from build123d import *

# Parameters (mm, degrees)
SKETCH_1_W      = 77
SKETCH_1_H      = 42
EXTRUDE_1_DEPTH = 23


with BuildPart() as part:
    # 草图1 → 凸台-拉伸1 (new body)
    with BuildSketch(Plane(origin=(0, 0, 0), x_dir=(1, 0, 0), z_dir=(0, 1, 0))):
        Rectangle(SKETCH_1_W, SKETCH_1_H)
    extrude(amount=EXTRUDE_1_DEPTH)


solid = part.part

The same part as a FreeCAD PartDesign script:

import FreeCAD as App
import Part
import Sketcher
Q = App.Units.Quantity


def add_polygon(sketch, points):
    """Adds a closed chain of lines whose ends are joined by coincident constraints."""
    first, n = sketch.GeometryCount, len(points)
    for a, b in zip(points, points[1:] + points[:1]):
        sketch.addGeometry(Part.LineSegment(App.Vector(*a, 0), App.Vector(*b, 0)), False)
    for i in range(n):
        sketch.addConstraint(Sketcher.Constraint("Coincident", first + i, 2, first + (i + 1) % n, 1))

doc = App.newDocument("Part")
body = doc.addObject("PartDesign::Body", "Body")

# Sketch on XZ plane
sketch1 = body.newObject("Sketcher::SketchObject", "Sketch")
sketch1.AttachmentSupport = (doc.getObject("XZ_Plane"), [""])
sketch1.MapMode = "FlatFace"
add_polygon(sketch1, [(-38, -21), (-38, 21), (38, 21), (38, -21)])  # lines 0-3
sketch1.addConstraint([
    Sketcher.Constraint("Vertical", 0),
    Sketcher.Constraint("Horizontal", 1),
    Sketcher.Constraint("Vertical", 2),
    Sketcher.Constraint("Horizontal", 3),
    Sketcher.Constraint("Symmetric", 0, 2, 2, 2, -1, 1),
    Sketcher.Constraint("DistanceX", 1, 1, 1, 2, Q("77 mm")),
    Sketcher.Constraint("DistanceY", 0, 1, 0, 2, Q("42 mm")),
])
pad1 = body.newObject("PartDesign::Pad", "Pad")
pad1.Profile = sketch1
pad1.Length = 23
pad1.Reversed = True

doc.recompute()
